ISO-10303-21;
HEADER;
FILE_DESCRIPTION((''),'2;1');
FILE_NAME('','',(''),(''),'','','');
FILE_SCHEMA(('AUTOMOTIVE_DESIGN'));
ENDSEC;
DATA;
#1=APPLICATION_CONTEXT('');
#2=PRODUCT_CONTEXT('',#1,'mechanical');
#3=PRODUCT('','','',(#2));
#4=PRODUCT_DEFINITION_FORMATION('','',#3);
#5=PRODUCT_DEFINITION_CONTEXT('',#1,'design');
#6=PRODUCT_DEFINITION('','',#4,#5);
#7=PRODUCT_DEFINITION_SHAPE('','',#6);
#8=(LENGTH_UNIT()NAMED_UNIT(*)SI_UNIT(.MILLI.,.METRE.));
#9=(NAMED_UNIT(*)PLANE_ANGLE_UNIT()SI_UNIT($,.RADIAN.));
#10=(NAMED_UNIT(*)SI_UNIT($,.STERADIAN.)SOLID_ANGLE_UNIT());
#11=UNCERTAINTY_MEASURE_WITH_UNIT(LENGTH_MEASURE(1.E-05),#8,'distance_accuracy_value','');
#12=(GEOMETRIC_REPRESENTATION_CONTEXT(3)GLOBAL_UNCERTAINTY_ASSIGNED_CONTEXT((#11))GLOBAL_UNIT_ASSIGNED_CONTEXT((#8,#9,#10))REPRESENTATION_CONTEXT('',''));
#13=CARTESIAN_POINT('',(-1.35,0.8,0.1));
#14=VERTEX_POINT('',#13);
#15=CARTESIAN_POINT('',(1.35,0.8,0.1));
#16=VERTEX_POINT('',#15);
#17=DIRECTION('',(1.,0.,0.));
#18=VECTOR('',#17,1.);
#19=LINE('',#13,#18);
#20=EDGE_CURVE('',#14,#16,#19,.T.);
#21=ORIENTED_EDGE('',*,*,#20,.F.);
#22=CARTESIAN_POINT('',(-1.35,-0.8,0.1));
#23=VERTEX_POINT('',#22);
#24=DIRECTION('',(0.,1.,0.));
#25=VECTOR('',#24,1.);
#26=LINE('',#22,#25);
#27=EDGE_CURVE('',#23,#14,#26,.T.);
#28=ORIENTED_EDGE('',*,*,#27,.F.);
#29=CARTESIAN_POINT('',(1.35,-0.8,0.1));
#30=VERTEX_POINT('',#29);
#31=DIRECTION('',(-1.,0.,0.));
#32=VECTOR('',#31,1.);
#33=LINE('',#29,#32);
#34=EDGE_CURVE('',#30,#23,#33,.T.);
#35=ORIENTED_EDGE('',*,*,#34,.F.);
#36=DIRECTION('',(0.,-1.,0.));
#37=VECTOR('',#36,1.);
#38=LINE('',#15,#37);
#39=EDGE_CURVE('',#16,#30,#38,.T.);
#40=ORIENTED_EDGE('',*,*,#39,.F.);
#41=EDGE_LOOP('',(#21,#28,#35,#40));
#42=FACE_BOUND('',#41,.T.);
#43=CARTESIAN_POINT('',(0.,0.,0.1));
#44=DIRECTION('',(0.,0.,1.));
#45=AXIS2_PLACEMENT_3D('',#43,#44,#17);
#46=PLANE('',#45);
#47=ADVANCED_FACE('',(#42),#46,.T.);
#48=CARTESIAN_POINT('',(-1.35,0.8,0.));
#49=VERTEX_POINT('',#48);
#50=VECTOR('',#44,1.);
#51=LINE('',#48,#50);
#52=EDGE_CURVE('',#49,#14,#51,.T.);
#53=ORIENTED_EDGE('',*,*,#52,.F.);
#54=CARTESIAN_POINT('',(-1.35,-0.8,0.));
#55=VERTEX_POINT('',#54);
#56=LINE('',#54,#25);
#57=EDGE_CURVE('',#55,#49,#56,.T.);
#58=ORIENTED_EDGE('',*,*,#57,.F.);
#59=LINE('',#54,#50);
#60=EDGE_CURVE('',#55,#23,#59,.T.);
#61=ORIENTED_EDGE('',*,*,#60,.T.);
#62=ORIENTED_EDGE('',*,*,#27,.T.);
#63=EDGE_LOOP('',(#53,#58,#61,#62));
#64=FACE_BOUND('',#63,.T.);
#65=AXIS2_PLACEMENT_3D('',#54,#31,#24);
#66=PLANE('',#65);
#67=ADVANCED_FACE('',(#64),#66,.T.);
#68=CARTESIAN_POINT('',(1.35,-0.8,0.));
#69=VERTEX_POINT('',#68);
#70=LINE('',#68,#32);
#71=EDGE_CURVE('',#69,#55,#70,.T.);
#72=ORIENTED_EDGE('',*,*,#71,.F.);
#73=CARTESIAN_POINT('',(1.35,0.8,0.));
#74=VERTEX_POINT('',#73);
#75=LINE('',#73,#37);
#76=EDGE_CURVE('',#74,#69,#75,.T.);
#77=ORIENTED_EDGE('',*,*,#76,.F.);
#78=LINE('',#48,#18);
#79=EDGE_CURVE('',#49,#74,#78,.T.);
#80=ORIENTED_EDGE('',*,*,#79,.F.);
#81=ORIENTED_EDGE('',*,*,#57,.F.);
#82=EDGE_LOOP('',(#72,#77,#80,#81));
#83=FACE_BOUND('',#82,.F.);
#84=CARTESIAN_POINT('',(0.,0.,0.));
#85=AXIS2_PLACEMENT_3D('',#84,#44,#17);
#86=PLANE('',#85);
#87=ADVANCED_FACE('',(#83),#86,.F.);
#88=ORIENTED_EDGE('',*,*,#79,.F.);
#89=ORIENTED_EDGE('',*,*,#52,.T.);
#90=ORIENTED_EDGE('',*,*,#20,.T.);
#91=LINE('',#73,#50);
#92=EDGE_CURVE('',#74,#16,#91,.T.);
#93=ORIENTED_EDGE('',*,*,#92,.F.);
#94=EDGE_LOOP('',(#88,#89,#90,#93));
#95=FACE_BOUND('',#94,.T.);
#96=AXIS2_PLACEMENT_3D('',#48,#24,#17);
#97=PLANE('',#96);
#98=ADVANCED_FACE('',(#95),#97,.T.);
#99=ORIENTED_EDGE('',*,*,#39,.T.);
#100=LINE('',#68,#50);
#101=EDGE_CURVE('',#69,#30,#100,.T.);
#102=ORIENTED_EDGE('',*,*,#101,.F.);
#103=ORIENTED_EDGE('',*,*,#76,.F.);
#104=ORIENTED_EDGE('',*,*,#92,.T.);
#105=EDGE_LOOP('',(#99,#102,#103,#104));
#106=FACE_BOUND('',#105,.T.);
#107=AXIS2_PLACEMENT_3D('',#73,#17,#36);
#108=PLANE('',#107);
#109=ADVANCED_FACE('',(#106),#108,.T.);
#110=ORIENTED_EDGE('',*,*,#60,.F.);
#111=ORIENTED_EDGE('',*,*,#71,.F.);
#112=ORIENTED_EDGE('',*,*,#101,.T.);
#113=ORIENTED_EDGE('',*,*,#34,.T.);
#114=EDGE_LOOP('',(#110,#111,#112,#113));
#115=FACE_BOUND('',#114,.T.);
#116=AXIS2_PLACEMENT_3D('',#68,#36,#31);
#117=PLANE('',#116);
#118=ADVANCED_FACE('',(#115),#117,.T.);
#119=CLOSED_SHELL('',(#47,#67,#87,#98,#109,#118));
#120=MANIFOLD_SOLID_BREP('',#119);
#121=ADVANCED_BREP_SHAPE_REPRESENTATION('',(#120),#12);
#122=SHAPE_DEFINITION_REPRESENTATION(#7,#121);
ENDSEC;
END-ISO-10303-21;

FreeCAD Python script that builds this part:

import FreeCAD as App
import Part
import Sketcher


def add_polygon(sketch, points):
    """Adds a closed chain of lines whose ends are joined by coincident constraints."""
    first, n = sketch.GeometryCount, len(points)
    for a, b in zip(points, points[1:] + points[:1]):
        sketch.addGeometry(Part.LineSegment(App.Vector(*a, 0), App.Vector(*b, 0)), False)
    for i in range(n):
        sketch.addConstraint(Sketcher.Constraint("Coincident", first + i, 2, first + (i + 1) % n, 1))

doc = App.newDocument("Part")
body = doc.addObject("PartDesign::Body", "Body")

# Sketch on XY plane
sketch1 = body.newObject("Sketcher::SketchObject", "Sketch")
sketch1.AttachmentSupport = (doc.getObject("XY_Plane"), [""])
sketch1.MapMode = "FlatFace"
add_polygon(sketch1, [(-1.4, 0.8), (-1.4, -0.8), (1.4, -0.8), (1.4, 0.8)])  # lines 0-3
sketch1.addConstraint([
    Sketcher.Constraint("Vertical", 0),
    Sketcher.Constraint("Horizontal", 1),
    Sketcher.Constraint("Vertical", 2),
    Sketcher.Constraint("Horizontal", 3),
    Sketcher.Constraint("Symmetric", 0, 2, 2, 2, -1, 1),
    Sketcher.Constraint("DistanceX", 1, 1, 1, 2, 2.7),
    Sketcher.Constraint("DistanceY", 0, 2, 0, 1, 1.6),
])
pad1 = body.newObject("PartDesign::Pad", "Pad")
pad1.Profile = sketch1
pad1.Length = 0.1

doc.recompute()
